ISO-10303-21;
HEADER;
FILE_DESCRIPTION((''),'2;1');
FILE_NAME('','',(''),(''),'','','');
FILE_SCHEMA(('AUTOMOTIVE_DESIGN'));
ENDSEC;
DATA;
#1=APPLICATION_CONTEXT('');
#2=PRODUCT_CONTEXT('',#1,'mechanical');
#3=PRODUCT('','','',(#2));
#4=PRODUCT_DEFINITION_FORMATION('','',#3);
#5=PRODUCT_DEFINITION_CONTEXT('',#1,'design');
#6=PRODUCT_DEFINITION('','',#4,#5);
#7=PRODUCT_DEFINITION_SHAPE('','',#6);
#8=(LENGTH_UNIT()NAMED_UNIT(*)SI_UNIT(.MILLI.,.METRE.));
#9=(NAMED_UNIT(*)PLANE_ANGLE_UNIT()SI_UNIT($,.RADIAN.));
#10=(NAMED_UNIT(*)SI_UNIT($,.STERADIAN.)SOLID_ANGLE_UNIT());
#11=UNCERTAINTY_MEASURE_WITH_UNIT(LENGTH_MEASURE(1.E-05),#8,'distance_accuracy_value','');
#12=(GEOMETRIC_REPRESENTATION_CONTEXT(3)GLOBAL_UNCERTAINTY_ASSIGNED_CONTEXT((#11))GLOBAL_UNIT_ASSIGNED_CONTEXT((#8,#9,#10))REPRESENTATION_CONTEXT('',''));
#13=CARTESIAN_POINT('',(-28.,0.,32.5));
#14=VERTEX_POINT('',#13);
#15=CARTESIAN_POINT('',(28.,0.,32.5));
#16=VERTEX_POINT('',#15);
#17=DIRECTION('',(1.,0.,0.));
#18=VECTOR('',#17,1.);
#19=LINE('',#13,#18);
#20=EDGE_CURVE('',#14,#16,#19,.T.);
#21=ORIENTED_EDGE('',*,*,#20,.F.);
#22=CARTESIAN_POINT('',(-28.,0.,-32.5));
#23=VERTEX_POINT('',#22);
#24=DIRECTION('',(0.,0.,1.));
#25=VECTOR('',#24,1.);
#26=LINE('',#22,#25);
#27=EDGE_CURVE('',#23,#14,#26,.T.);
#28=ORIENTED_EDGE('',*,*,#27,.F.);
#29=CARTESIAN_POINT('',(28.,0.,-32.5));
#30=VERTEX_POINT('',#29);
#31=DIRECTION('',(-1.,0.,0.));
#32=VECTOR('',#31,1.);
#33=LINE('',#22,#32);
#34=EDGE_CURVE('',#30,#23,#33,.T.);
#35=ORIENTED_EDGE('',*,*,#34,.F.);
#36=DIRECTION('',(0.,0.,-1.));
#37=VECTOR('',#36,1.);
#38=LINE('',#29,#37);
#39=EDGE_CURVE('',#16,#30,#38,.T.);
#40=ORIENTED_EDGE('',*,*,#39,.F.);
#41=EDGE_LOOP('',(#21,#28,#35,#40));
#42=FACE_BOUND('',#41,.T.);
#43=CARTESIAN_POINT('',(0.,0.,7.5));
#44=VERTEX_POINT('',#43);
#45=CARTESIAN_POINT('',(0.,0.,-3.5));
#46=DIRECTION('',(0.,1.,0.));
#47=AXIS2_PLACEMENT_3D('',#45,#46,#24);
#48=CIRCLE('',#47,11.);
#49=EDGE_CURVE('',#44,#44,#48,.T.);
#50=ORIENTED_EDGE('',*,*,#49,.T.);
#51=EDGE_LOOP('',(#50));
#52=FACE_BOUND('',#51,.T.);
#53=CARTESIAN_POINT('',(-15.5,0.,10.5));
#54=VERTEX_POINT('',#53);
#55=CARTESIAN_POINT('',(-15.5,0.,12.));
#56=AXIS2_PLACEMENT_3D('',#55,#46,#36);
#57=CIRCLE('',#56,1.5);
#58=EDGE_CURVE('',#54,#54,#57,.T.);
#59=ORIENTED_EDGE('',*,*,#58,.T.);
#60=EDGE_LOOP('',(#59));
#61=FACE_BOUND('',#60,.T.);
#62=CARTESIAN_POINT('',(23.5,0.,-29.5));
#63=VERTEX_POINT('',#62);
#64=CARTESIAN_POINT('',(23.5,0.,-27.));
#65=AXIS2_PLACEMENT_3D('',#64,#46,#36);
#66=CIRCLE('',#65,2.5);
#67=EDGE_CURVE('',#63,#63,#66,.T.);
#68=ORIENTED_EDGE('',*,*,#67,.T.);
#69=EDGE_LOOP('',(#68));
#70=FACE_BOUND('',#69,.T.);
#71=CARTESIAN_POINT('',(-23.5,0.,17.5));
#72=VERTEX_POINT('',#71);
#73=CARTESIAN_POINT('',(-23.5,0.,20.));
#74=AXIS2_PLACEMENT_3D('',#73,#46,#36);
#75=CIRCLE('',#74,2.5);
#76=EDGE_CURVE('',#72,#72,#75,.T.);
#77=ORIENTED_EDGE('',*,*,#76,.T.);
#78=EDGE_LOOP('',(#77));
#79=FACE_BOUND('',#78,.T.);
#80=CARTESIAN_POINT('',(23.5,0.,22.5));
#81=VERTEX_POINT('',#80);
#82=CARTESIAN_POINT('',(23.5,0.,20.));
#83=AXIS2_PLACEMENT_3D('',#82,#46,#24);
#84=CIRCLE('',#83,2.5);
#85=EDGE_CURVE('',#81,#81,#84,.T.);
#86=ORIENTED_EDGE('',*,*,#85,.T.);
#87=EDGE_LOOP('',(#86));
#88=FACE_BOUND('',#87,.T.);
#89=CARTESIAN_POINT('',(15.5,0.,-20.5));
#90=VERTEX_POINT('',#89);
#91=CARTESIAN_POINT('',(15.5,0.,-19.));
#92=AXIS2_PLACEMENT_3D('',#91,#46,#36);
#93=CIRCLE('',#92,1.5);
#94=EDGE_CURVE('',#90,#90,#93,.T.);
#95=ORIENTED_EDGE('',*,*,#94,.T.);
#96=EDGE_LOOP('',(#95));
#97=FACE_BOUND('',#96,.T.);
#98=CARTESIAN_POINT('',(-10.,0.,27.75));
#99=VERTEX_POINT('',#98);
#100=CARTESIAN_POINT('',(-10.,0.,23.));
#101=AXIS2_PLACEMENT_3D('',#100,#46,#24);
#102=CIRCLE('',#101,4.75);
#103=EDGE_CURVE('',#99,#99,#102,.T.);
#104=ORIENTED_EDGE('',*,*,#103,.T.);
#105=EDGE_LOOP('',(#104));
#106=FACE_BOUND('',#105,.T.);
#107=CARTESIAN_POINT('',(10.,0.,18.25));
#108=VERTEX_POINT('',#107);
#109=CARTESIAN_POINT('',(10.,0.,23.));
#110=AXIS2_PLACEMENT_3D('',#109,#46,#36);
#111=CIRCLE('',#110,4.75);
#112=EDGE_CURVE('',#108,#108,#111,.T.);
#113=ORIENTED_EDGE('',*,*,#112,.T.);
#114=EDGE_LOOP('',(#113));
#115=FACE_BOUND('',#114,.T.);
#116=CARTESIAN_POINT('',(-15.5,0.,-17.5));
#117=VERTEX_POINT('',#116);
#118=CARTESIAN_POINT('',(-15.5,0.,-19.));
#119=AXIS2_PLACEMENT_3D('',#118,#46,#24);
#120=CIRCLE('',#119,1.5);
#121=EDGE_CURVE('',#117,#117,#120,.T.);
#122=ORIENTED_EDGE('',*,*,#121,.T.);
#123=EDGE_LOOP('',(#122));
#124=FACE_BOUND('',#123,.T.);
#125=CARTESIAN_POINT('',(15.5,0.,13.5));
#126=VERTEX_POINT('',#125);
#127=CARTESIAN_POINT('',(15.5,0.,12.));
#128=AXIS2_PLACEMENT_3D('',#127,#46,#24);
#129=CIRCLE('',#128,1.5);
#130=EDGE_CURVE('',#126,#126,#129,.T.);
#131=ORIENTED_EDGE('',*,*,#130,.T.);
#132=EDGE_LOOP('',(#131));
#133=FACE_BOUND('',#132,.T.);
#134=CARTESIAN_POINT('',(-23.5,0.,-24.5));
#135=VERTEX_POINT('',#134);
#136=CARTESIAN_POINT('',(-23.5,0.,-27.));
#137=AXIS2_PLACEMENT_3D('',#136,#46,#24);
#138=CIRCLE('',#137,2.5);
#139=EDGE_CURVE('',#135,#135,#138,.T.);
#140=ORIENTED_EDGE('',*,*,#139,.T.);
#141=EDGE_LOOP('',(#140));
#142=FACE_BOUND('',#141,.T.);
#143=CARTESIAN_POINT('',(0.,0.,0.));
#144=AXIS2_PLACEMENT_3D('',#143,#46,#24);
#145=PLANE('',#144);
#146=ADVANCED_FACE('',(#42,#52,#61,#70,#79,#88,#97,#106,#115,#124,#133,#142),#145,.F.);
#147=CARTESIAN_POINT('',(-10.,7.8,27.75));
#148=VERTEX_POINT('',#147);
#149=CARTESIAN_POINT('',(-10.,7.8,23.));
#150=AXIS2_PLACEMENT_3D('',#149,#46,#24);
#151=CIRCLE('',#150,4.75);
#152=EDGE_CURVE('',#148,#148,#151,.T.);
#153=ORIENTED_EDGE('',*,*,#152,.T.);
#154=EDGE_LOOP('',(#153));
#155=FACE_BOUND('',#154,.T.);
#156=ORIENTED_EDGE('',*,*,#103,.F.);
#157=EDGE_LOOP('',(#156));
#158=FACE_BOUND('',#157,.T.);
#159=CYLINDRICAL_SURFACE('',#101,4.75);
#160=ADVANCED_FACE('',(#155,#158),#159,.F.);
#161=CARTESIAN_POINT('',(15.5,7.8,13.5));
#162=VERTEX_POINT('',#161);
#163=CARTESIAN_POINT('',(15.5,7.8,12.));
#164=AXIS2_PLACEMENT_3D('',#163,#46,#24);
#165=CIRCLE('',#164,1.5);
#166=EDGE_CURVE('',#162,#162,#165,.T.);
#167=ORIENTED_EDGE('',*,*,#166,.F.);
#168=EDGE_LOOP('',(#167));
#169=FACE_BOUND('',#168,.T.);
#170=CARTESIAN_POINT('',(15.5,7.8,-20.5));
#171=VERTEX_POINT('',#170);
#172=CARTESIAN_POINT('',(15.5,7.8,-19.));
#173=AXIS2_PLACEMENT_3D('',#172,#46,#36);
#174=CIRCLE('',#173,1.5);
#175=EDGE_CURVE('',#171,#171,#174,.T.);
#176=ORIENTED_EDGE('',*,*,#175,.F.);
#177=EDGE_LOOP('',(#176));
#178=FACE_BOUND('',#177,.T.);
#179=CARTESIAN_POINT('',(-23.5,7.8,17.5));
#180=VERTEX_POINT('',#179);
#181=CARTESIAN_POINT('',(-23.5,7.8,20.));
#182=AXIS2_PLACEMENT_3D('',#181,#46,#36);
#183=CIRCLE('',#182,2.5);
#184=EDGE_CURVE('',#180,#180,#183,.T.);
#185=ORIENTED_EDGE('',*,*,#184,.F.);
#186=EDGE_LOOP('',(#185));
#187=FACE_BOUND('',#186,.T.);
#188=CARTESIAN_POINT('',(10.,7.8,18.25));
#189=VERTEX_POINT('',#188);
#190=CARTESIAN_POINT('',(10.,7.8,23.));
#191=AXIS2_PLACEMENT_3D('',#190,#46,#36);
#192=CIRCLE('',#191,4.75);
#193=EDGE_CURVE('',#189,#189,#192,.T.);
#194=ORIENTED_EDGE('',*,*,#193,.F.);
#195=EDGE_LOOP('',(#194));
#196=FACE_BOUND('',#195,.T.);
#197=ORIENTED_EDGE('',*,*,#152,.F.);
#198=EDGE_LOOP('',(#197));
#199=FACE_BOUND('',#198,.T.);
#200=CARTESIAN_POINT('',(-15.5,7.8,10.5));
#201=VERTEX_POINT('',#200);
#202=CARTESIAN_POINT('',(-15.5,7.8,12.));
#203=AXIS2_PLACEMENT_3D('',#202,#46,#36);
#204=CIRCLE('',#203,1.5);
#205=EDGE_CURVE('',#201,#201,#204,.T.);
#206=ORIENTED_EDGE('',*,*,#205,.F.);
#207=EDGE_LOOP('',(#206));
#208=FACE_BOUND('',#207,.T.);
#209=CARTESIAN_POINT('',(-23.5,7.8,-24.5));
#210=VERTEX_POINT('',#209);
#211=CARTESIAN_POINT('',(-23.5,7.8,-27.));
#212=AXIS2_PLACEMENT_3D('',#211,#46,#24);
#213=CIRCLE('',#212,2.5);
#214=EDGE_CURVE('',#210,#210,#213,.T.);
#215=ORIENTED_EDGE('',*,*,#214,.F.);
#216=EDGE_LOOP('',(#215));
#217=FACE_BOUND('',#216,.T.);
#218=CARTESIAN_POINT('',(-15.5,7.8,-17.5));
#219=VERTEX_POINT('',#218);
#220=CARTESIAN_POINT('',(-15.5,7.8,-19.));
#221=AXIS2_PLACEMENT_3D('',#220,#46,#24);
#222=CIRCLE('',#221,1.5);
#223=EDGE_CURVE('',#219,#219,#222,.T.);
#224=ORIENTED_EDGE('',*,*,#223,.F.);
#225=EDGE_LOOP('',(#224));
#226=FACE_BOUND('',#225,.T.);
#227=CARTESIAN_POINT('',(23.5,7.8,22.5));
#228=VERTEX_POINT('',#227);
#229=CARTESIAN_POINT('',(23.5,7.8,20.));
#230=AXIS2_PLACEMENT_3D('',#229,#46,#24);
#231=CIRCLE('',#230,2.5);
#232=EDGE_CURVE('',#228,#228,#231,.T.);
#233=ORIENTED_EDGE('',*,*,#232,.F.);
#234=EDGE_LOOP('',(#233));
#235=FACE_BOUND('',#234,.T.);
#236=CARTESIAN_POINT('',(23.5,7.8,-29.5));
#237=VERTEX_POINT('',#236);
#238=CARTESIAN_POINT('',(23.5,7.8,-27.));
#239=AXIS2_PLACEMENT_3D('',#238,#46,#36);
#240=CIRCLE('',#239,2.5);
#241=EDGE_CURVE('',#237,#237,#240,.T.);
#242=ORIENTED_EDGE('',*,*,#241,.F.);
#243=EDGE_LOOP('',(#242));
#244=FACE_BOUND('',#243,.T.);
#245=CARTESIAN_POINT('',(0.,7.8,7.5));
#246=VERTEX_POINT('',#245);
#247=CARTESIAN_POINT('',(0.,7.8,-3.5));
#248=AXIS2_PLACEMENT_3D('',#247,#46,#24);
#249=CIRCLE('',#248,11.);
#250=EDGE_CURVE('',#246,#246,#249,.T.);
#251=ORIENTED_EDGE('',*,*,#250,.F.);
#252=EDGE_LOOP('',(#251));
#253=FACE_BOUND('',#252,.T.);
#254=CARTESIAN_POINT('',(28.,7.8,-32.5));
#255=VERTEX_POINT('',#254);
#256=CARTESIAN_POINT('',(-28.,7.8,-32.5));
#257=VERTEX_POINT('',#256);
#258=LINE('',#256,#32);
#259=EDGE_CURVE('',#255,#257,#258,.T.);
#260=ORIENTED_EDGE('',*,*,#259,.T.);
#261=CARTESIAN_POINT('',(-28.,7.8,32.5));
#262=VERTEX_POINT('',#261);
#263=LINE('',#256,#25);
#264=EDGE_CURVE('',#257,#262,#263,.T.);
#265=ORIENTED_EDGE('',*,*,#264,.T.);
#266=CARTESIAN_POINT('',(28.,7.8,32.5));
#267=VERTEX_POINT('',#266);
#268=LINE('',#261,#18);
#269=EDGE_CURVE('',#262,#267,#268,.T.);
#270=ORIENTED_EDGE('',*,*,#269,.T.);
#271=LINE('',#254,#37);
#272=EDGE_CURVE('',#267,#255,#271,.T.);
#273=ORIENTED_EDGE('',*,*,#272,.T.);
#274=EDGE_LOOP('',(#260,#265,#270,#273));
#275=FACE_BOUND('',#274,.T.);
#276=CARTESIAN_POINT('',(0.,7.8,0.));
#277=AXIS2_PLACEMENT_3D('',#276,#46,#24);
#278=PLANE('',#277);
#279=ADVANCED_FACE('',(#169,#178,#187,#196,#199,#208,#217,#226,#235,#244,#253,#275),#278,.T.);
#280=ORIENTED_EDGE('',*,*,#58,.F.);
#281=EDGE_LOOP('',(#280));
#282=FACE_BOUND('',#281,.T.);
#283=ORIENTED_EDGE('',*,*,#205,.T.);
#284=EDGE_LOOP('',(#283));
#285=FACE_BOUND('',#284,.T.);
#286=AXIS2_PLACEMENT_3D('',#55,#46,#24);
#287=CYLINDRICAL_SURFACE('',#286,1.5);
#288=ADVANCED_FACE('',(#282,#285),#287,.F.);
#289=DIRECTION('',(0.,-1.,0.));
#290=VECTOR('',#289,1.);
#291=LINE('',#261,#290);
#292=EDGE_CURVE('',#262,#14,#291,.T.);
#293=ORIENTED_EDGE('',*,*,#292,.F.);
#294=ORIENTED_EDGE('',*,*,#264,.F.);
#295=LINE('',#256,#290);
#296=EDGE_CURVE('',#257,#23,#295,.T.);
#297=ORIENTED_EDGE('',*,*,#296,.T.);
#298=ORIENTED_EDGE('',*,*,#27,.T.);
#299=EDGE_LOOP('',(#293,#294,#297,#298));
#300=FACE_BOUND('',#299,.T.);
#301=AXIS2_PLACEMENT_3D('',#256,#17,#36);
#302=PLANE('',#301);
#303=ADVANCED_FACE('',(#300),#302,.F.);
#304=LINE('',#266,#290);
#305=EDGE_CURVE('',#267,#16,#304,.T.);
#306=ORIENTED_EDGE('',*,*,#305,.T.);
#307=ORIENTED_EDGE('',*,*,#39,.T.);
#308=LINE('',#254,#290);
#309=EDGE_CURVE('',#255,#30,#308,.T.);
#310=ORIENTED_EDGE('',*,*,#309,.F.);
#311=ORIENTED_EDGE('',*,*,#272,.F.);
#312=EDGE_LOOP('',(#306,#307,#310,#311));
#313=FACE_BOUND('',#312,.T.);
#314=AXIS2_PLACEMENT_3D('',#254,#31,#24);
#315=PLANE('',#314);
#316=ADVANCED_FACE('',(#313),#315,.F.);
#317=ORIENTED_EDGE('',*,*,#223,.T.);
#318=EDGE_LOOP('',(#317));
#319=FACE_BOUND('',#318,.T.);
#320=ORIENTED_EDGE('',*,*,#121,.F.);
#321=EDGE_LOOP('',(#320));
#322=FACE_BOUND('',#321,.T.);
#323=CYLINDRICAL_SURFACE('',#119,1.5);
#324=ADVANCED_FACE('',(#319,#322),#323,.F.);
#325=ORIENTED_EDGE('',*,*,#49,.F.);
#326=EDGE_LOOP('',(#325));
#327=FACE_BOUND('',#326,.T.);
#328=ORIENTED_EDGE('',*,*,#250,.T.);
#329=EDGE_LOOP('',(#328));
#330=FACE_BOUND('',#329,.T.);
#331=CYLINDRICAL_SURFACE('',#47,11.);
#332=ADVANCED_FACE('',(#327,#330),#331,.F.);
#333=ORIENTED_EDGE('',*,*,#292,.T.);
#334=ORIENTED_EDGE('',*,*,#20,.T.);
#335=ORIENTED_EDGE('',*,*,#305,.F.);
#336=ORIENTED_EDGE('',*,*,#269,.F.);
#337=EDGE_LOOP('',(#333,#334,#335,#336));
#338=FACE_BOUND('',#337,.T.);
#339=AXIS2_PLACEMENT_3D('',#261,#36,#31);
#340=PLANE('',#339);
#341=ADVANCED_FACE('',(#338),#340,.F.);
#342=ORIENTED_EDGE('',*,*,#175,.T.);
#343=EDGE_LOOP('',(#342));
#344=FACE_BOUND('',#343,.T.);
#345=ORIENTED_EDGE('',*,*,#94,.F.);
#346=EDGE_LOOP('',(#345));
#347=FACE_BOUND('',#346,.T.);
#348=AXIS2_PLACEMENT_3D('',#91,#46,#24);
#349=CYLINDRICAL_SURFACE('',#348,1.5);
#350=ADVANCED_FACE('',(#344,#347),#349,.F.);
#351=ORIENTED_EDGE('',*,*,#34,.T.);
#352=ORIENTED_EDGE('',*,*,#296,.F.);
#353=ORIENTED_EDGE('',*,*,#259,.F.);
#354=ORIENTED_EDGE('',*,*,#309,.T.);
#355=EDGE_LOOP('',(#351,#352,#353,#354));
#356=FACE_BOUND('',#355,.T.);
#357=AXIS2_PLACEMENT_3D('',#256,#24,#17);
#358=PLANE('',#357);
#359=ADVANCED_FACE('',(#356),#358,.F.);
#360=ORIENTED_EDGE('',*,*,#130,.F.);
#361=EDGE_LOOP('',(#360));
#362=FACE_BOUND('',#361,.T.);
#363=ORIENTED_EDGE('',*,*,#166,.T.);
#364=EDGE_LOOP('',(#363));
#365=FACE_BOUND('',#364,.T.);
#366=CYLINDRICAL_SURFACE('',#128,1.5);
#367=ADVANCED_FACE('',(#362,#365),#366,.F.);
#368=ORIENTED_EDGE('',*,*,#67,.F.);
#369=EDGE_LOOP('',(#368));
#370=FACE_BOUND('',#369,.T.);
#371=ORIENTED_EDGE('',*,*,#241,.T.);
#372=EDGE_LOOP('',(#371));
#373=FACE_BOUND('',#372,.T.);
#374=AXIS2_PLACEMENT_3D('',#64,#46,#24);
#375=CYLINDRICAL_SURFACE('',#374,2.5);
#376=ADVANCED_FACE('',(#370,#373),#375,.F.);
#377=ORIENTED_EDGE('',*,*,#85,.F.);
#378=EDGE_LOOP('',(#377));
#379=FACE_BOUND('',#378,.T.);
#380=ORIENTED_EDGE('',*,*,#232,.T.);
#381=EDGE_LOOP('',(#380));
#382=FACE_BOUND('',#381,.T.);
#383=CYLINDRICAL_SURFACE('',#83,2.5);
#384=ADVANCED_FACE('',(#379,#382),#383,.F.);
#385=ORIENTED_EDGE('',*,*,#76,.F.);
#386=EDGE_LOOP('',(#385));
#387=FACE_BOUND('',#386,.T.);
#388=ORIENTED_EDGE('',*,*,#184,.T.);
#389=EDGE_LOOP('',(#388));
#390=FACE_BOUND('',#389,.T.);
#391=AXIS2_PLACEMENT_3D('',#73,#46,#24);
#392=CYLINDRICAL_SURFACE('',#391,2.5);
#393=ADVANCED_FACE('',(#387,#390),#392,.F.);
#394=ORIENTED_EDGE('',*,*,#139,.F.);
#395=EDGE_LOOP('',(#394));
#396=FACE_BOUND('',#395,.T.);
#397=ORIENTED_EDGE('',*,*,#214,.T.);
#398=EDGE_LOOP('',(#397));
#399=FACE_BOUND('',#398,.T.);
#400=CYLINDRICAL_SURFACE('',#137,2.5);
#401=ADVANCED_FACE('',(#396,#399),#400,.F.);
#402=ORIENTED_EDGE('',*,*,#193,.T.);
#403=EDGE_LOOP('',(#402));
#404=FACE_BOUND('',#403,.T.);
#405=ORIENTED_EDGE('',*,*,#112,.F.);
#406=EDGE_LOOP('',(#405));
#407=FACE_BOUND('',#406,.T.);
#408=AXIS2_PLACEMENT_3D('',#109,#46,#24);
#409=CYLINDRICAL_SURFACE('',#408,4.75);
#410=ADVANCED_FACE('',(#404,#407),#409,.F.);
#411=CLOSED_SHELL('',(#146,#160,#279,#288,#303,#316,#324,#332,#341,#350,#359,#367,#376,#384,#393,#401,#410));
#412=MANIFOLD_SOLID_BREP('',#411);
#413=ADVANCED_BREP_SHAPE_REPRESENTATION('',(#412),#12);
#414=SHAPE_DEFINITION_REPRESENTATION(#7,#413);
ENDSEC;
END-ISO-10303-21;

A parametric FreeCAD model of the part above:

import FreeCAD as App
import Part
import Sketcher
from FreeCAD import Vector

doc = App.newDocument("Part")
body = doc.addObject("PartDesign::Body", "Body")

sketch1 = doc.addObject("Sketcher::SketchObject", "Sketch")
body.addObject(sketch1)
sketch1.AttachmentSupport = (doc.XZ_Plane, [""])
sketch1.MapMode = "FlatFace"
sketch1.addGeometry([
    Part.LineSegment(Vector(-28, -32, 0), Vector(-28, 32, 0)),
    Part.LineSegment(Vector(-28, 32, 0), Vector(28, 32, 0)),
    Part.LineSegment(Vector(28, 32, 0), Vector(28, -32, 0)),
    Part.LineSegment(Vector(28, -32, 0), Vector(-28, -32, 0)),
], False)
sketch1.addConstraint([
    Sketcher.Constraint("Coincident", 0, 2, 1, 1),
    Sketcher.Constraint("Coincident", 1, 2, 2, 1),
    Sketcher.Constraint("Coincident", 2, 2, 3, 1),
    Sketcher.Constraint("Coincident", 3, 2, 0, 1),
    Sketcher.Constraint("Vertical", 0),
    Sketcher.Constraint("Horizontal", 1),
    Sketcher.Constraint("Vertical", 2),
    Sketcher.Constraint("Horizontal", 3),
    Sketcher.Constraint("Symmetric", 0, 2, 2, 2, -1, 1),
    Sketcher.Constraint("DistanceX", 1, 1, 1, 2, 56.0),
    Sketcher.Constraint("DistanceY", 0, 1, 0, 2, 65.0),
])
pad1 = doc.addObject("PartDesign::Pad", "Pad")
body.addObject(pad1)
pad1.Profile = sketch1
pad1.Length = 7.8
pad1.Reversed = True

sketch2 = doc.addObject("Sketcher::SketchObject", "Sketch001")
body.addObject(sketch2)
sketch2.AttachmentSupport = (doc.XZ_Plane, [""])
sketch2.MapMode = "FlatFace"
sketch2.AttachmentOffset = App.Placement(Vector(0, 0, -7.8), App.Rotation())
sketch2.addGeometry([
    Part.Circle(Vector(-10, 23, 0), Vector(0, 0, 1), 4.8),
    Part.Circle(Vector(10, 23, 0), Vector(0, 0, 1), 4.8),
], False)
sketch2.addConstraint([
    Sketcher.Constraint("Equal", 0, 1),
    Sketcher.Constraint("Symmetric", 0, 3, 1, 3, -2),
    Sketcher.Constraint("Diameter", 0, 9.5),
    Sketcher.Constraint("DistanceX", 0, 3, -1, 1, 10.0),
    Sketcher.Constraint("DistanceY", -1, 1, 0, 3, 23.0),
])
pocket1 = doc.addObject("PartDesign::Pocket", "Pocket")
body.addObject(pocket1)
pocket1.Profile = sketch2
pocket1.Type = "ThroughAll"
pocket1.Reversed = True

sketch3 = doc.addObject("Sketcher::SketchObject", "Sketch002")
body.addObject(sketch3)
sketch3.AttachmentSupport = (doc.XZ_Plane, [""])
sketch3.MapMode = "FlatFace"
sketch3.AttachmentOffset = App.Placement(Vector(0, 0, -7.8), App.Rotation())
sketch3.addGeometry([
    Part.Circle(Vector(0, -3.5, 0), Vector(0, 0, 1), 11),
    Part.Circle(Vector(-15.5, -19, 0), Vector(0, 0, 1), 1.5),
    Part.Circle(Vector(15.5, -19, 0), Vector(0, 0, 1), 1.5),
    Part.Circle(Vector(15.5, 12, 0), Vector(0, 0, 1), 1.5),
    Part.Circle(Vector(-15.5, 12, 0), Vector(0, 0, 1), 1.5),
    Part.Circle(Vector(-23.5, -27, 0), Vector(0, 0, 1), 2.5),
    Part.Circle(Vector(23.5, -27, 0), Vector(0, 0, 1), 2.5),
    Part.Circle(Vector(23.5, 20, 0), Vector(0, 0, 1), 2.5),
    Part.Circle(Vector(-23.5, 20, 0), Vector(0, 0, 1), 2.5),
], False)
sketch3.addConstraint([
    Sketcher.Constraint("Equal", 1, 2),
    Sketcher.Constraint("Equal", 2, 3),
    Sketcher.Constraint("Equal", 3, 4),
    Sketcher.Constraint("Equal", 5, 6),
    Sketcher.Constraint("Equal", 6, 7),
    Sketcher.Constraint("Equal", 7, 8),
    Sketcher.Constraint("Symmetric", 1, 3, 2, 3, -2),
    Sketcher.Constraint("Symmetric", 3, 3, 4, 3, -2),
    Sketcher.Constraint("Symmetric", 5, 3, 6, 3, -2),
    Sketcher.Constraint("Symmetric", 7, 3, 8, 3, -2),
    Sketcher.Constraint("PointOnObject", 0, 3, -2),
    Sketcher.Constraint("Vertical", 2, 3, 3, 3),
    Sketcher.Constraint("Vertical", 6, 3, 7, 3),
    Sketcher.Constraint("Diameter", 0, 22.0),
    Sketcher.Constraint("Diameter", 1, 3.0),
    Sketcher.Constraint("Diameter", 5, 5.0),
    Sketcher.Constraint("DistanceY", 1, 3, -1, 1, 19.0),
    Sketcher.Constraint("DistanceY", -1, 1, 3, 3, 12.0),
    Sketcher.Constraint("DistanceY", 5, 3, -1, 1, 27.0),
    Sketcher.Constraint("DistanceY", -1, 1, 7, 3, 20.0),
    Sketcher.Constraint("DistanceX", 1, 3, 2, 3, 31.0),
    Sketcher.Constraint("DistanceX", 5, 3, 1, 3, 8.0),
    Sketcher.Constraint("DistanceY", 0, 3, -1, 1, 3.5),
])
pocket2 = doc.addObject("PartDesign::Pocket", "Pocket001")
body.addObject(pocket2)
pocket2.Profile = sketch3
pocket2.Type = "ThroughAll"
pocket2.Reversed = True

doc.recompute()
